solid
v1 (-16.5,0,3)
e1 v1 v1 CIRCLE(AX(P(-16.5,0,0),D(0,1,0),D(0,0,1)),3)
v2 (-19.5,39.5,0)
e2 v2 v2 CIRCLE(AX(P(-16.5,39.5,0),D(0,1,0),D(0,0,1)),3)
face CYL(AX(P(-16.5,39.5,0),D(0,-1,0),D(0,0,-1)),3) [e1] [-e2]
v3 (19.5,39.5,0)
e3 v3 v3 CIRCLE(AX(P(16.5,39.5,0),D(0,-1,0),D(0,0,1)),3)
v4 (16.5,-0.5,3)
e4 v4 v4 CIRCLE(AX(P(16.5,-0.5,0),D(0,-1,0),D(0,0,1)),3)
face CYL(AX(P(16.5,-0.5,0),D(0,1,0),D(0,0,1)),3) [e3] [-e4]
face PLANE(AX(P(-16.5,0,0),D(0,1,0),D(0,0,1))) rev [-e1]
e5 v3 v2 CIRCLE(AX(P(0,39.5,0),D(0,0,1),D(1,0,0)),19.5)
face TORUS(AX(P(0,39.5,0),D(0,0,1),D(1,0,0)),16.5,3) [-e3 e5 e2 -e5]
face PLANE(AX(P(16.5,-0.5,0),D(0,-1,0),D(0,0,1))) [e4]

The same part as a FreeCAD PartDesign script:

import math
import FreeCAD as App
import Part
import Sketcher

V = App.Vector

doc = App.newDocument("Part")
body = doc.addObject("PartDesign::Body", "Body")

sketch1 = body.newObject("Sketcher::SketchObject", "Sketch")
sketch1.AttachmentSupport = (doc.getObject("XZ_Plane"), [""])
sketch1.MapMode = "FlatFace"
sketch1.addGeometry(Part.Circle(V(-16.5, 0, 0), V(0, 0, 1), 3), False)
sketch1.addConstraint([
    Sketcher.Constraint("PointOnObject", 0, 3, -1),
    Sketcher.Constraint("Diameter", 0, 6.0),
    Sketcher.Constraint("DistanceX", 0, 3, -1, 1, 16.5),
])

sketch2 = body.newObject("Sketcher::SketchObject", "Sketch001")
sketch2.AttachmentSupport = (doc.getObject("XY_Plane"), [""])
sketch2.MapMode = "FlatFace"
sketch2.addGeometry([
    Part.LineSegment(V(-16.5, 0, 0), V(-16.5, 39.5, 0)),
    Part.ArcOfCircle(Part.Circle(V(0, 39.5, 0), V(0, 0, 1), 16.5), math.radians(0), math.radians(180)),
    Part.LineSegment(V(16.5, 39.5, 0), V(16.5, -0.5, 0)),
], False)
sketch2.addConstraint([
    Sketcher.Constraint("Tangent", 0, 2, 1, 2),
    Sketcher.Constraint("Tangent", 1, 1, 2, 1),
    Sketcher.Constraint("Vertical", 0),
    Sketcher.Constraint("Vertical", 2),
    Sketcher.Constraint("PointOnObject", 1, 3, -2),
    Sketcher.Constraint("PointOnObject", 0, 1, -1),
    Sketcher.Constraint("Radius", 1, 16.5),
    Sketcher.Constraint("DistanceY", 2, 2, 2, 1, 40.0),
    Sketcher.Constraint("DistanceY", 0, 1, 0, 2, 39.5),
])
doc.recompute()

additivepipe = body.newObject("PartDesign::AdditivePipe", "AdditivePipe")
additivepipe.Profile = sketch1
additivepipe.Spine = (sketch2, ["Edge1", "Edge2", "Edge3"])

doc.recompute()
